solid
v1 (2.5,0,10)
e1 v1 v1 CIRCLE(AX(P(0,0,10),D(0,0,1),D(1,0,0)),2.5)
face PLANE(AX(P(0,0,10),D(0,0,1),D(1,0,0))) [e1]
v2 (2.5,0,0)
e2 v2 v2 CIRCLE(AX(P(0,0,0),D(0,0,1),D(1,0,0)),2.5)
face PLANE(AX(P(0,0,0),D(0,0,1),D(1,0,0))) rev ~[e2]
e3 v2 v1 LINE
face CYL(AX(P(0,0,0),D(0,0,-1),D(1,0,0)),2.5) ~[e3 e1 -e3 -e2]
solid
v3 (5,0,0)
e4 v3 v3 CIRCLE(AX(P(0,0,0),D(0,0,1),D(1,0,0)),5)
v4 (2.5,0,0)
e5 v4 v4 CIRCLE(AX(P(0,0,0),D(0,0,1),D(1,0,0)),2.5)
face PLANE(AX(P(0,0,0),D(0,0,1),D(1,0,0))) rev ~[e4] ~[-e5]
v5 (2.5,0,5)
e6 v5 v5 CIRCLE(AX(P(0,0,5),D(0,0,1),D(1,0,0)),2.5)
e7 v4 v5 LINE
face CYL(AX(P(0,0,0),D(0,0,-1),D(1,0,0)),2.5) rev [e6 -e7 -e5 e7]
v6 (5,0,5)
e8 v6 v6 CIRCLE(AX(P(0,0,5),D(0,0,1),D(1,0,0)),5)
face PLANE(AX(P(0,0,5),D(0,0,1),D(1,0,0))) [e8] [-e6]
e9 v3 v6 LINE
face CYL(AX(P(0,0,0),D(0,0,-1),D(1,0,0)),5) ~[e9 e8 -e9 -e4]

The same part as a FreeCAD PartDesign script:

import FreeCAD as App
import Part
import Sketcher
Q = App.Units.Quantity

doc = App.newDocument("Part")
body = doc.addObject("PartDesign::Body", "Body")

# Sketch on XY plane
sketch1 = body.newObject("Sketcher::SketchObject", "Sketch")
sketch1.AttachmentSupport = (doc.getObject("XY_Plane"), [""])
sketch1.MapMode = "FlatFace"
sketch1.addGeometry(Part.Circle(App.Vector(0, 0, 0), App.Vector(0, 0, 1), 2.5), False)
sketch1.addConstraint(Sketcher.Constraint("Coincident", 0, 3, -1, 1))
sketch1.addConstraint(Sketcher.Constraint("Diameter", 0, Q("5 mm")))
pad1 = body.newObject("PartDesign::Pad", "Pad")
pad1.Profile = sketch1
pad1.Length = 10
body2 = doc.addObject("PartDesign::Body", "Body001")

# Sketch on XY plane
sketch2 = body2.newObject("Sketcher::SketchObject", "Sketch001")
sketch2.AttachmentSupport = (doc.getObject("XY_Plane001"), [""])
sketch2.MapMode = "FlatFace"
sketch2.addGeometry(Part.Circle(App.Vector(0, 0, 0), App.Vector(0, 0, 1), 5), False)
sketch2.addGeometry(Part.Circle(App.Vector(0, 0, 0), App.Vector(0, 0, 1), 2.5), False)
sketch2.addConstraint(Sketcher.Constraint("Coincident", 0, 3, -1, 1))
sketch2.addConstraint(Sketcher.Constraint("Coincident", 1, 3, -1, 1))
sketch2.addConstraint(Sketcher.Constraint("Diameter", 0, Q("10 mm")))
sketch2.addConstraint(Sketcher.Constraint("Diameter", 1, Q("5 mm")))
pad2 = body2.newObject("PartDesign::Pad", "Pad001")
pad2.Profile = sketch2
pad2.Length = 5

doc.recompute()
